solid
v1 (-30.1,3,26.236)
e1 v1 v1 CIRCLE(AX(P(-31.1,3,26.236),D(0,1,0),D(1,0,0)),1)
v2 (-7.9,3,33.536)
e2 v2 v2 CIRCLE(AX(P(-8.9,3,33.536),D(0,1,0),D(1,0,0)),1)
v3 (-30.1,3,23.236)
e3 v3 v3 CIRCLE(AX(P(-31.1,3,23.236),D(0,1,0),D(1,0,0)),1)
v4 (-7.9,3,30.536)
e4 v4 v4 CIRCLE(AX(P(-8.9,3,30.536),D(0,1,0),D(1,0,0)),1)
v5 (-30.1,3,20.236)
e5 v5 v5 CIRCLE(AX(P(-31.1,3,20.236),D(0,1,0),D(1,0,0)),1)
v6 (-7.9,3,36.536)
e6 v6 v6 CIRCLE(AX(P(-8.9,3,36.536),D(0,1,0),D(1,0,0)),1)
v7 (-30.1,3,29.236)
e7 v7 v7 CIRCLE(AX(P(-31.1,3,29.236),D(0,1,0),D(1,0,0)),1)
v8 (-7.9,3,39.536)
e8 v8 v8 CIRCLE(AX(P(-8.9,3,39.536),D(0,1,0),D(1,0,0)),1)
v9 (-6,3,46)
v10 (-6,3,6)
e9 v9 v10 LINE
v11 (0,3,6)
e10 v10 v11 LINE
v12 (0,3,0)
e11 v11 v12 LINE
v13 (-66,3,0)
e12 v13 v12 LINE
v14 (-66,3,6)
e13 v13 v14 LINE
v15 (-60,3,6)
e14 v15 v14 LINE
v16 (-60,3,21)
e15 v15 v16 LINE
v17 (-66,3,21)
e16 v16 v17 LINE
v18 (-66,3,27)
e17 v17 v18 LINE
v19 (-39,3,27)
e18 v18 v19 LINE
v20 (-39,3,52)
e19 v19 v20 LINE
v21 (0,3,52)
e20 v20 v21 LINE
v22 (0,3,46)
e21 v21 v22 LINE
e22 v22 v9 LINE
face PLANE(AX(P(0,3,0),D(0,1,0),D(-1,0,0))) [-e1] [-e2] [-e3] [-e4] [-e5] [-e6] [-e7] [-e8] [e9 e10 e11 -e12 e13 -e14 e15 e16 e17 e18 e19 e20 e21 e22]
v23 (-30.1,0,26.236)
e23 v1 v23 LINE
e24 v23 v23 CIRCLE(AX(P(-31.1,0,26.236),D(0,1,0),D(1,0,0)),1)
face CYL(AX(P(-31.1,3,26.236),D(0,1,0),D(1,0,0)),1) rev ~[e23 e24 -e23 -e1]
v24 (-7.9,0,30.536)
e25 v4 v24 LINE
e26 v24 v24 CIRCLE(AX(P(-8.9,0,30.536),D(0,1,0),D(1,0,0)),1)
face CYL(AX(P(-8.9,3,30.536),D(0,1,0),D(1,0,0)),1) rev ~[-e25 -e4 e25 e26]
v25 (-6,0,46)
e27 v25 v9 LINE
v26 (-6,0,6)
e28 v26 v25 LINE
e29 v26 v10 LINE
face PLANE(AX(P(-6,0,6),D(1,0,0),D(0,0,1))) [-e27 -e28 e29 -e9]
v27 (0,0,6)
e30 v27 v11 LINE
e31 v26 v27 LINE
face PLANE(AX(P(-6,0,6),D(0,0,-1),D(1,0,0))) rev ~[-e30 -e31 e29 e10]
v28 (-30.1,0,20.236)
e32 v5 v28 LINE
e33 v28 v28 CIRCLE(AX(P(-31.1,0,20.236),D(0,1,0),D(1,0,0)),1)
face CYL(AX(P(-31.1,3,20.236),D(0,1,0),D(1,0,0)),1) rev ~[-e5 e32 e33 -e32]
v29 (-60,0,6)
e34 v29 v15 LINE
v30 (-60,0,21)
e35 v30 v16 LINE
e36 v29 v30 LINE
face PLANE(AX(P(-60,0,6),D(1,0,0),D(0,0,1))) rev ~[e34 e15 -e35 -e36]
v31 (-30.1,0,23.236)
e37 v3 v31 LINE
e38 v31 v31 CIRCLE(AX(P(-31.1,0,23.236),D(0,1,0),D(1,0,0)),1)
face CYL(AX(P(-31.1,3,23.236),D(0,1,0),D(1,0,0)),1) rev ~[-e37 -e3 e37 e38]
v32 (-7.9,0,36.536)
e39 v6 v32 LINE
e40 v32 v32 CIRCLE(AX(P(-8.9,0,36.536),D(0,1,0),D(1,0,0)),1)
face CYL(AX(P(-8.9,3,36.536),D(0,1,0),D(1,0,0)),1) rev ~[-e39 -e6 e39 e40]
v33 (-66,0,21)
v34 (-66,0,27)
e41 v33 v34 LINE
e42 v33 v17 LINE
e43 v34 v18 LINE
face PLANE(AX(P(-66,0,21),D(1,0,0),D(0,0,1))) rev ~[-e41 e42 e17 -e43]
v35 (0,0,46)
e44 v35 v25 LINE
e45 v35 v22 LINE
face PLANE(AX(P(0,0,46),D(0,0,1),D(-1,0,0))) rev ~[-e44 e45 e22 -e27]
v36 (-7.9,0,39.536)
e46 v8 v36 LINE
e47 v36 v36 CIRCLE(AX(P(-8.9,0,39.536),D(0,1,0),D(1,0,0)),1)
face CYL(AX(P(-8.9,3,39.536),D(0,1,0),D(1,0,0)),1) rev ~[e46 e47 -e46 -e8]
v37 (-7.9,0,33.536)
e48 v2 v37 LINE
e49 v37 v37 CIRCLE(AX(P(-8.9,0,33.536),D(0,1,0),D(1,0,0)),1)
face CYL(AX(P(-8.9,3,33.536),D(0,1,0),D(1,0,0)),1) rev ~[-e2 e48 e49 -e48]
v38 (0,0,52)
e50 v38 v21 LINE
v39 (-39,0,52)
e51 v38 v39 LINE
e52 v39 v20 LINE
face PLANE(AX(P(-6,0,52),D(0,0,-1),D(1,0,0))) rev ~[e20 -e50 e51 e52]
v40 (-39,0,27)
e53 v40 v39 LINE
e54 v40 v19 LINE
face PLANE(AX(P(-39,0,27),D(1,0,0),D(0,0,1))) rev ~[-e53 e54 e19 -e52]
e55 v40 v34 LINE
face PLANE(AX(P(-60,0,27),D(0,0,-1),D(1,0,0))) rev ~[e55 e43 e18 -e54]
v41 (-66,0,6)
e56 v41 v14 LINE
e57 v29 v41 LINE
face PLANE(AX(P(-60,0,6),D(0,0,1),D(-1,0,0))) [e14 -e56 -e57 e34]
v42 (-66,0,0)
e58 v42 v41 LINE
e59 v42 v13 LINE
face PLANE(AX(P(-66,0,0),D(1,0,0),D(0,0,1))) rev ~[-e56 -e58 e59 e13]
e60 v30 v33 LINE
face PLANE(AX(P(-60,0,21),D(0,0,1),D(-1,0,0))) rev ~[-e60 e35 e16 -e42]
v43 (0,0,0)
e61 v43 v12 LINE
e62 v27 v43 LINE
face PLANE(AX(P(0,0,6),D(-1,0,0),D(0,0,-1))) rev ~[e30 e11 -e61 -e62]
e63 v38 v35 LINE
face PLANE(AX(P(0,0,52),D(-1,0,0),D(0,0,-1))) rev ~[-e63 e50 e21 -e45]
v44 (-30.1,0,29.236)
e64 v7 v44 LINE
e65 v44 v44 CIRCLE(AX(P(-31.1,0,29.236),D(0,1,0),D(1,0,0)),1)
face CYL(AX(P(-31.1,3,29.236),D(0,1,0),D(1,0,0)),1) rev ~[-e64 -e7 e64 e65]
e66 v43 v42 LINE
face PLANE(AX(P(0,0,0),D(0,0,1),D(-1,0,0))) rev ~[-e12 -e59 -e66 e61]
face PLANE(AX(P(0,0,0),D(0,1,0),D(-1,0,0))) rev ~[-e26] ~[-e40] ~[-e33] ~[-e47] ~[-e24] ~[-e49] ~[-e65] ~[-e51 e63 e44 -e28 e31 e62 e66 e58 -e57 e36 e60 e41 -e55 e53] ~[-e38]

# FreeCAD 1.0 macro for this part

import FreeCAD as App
import Part
import Sketcher
from FreeCAD import Vector

doc = App.newDocument("Part")
body = doc.addObject("PartDesign::Body", "Body")

# Sketch on XZ plane
sketch1 = body.newObject("Sketcher::SketchObject", "Sketch")
sketch1.AttachmentSupport = (doc.getObject("XZ_Plane"), [""])
sketch1.MapMode = "FlatFace"
sketch1.addGeometry([
    Part.LineSegment(Vector(0, 6, 0), Vector(0, 0, 0)),  # 0
    Part.LineSegment(Vector(0, 0, 0), Vector(-66, 0, 0)),  # 1
    Part.LineSegment(Vector(-66, 0, 0), Vector(-66, 6, 0)),  # 2
    Part.LineSegment(Vector(-66, 6, 0), Vector(-60, 6, 0)),  # 3
    Part.LineSegment(Vector(-60, 6, 0), Vector(-60, 21, 0)),  # 4
    Part.LineSegment(Vector(-60, 21, 0), Vector(-66, 21, 0)),  # 5
    Part.LineSegment(Vector(-66, 21, 0), Vector(-66, 27, 0)),  # 6
    Part.LineSegment(Vector(-66, 27, 0), Vector(-39, 27, 0)),  # 7
    Part.LineSegment(Vector(-39, 27, 0), Vector(-39, 52, 0)),  # 8
    Part.LineSegment(Vector(-39, 52, 0), Vector(0, 52, 0)),  # 9
    Part.LineSegment(Vector(0, 52, 0), Vector(0, 46, 0)),  # 10
    Part.LineSegment(Vector(0, 46, 0), Vector(-6, 46, 0)),  # 11
    Part.LineSegment(Vector(-6, 46, 0), Vector(-6, 6, 0)),  # 12
    Part.LineSegment(Vector(-6, 6, 0), Vector(0, 6, 0)),  # 13
], False)
sketch1.addConstraint([
    Sketcher.Constraint("Coincident", 0, 2, 1, 1),
    Sketcher.Constraint("Coincident", 1, 2, 2, 1),
    Sketcher.Constraint("Coincident", 2, 2, 3, 1),
    Sketcher.Constraint("Coincident", 3, 2, 4, 1),
    Sketcher.Constraint("Coincident", 4, 2, 5, 1),
    Sketcher.Constraint("Coincident", 5, 2, 6, 1),
    Sketcher.Constraint("Coincident", 6, 2, 7, 1),
    Sketcher.Constraint("Coincident", 7, 2, 8, 1),
    Sketcher.Constraint("Coincident", 8, 2, 9, 1),
    Sketcher.Constraint("Coincident", 9, 2, 10, 1),
    Sketcher.Constraint("Coincident", 10, 2, 11, 1),
    Sketcher.Constraint("Coincident", 11, 2, 12, 1),
    Sketcher.Constraint("Coincident", 12, 2, 13, 1),
    Sketcher.Constraint("Coincident", 13, 2, 0, 1),
    Sketcher.Constraint("Vertical", 0),
    Sketcher.Constraint("Horizontal", 1),
    Sketcher.Constraint("Vertical", 2),
    Sketcher.Constraint("Horizontal", 3),
    Sketcher.Constraint("Vertical", 4),
    Sketcher.Constraint("Horizontal", 5),
    Sketcher.Constraint("Vertical", 6),
    Sketcher.Constraint("Horizontal", 7),
    Sketcher.Constraint("Vertical", 8),
    Sketcher.Constraint("Horizontal", 9),
    Sketcher.Constraint("Vertical", 10),
    Sketcher.Constraint("Horizontal", 11),
    Sketcher.Constraint("Vertical", 12),
    Sketcher.Constraint("Horizontal", 13),
    Sketcher.Constraint("Coincident", 0, 2, -1, 1),
    Sketcher.Constraint("PointOnObject", 9, 2, -2),
    Sketcher.Constraint("Horizontal", 3, 2, 12, 2),
    Sketcher.Constraint("Vertical", 2, 2, 5, 2),
    Sketcher.Constraint("Equal", 5, 11),
    Sketcher.Constraint("Equal", 13, 0),
    Sketcher.Constraint("Equal", 2, 6),
    Sketcher.Constraint("Equal", 6, 10),
    Sketcher.Constraint("DistanceX", 1, 2, 1, 1, 66.0),
    Sketcher.Constraint("DistanceX", 3, 1, 3, 2, 6.0),
    Sketcher.Constraint("DistanceX", 7, 1, 7, 2, 27.0),
    Sketcher.Constraint("DistanceY", 8, 1, 8, 2, 25.0),
    Sketcher.Constraint("DistanceY", -1, 1, 6, 2, 27.0),
])
pad1 = body.newObject("PartDesign::Pad", "Pad")
pad1.Profile = sketch1
pad1.Length = 3
pad1.Reversed = True

# Sketch on XZ plane
sketch2 = body.newObject("Sketcher::SketchObject", "Sketch001")
sketch2.AttachmentSupport = (doc.getObject("XZ_Plane"), [""])
sketch2.MapMode = "FlatFace"
sketch2.AttachmentOffset = App.Placement(Vector(0, 0, -3), App.Rotation())
sketch2.addGeometry([
    Part.Circle(Vector(-8.9, 39.5, 0), Vector(0, 0, 1), 1),  # 0
    Part.Circle(Vector(-31.1, 29.2, 0), Vector(0, 0, 1), 1),  # 1
    Part.Circle(Vector(-8.9, 36.5, 0), Vector(0, 0, 1), 1),  # 2
    Part.Circle(Vector(-8.9, 33.5, 0), Vector(0, 0, 1), 1),  # 3
    Part.Circle(Vector(-8.9, 30.5, 0), Vector(0, 0, 1), 1),  # 4
    Part.Circle(Vector(-31.1, 26.2, 0), Vector(0, 0, 1), 1),  # 5
    Part.Circle(Vector(-31.1, 23.2, 0), Vector(0, 0, 1), 1),  # 6
    Part.Circle(Vector(-31.1, 20.2, 0), Vector(0, 0, 1), 1),  # 7
], False)
sketch2.addConstraint([
    Sketcher.Constraint("Equal", 0, 1),
    Sketcher.Constraint("Equal", 1, 2),
    Sketcher.Constraint("Equal", 2, 3),
    Sketcher.Constraint("Equal", 3, 4),
    Sketcher.Constraint("Equal", 4, 5),
    Sketcher.Constraint("Equal", 5, 6),
    Sketcher.Constraint("Equal", 6, 7),
    Sketcher.Constraint("Vertical", 0, 3, 2, 3),
    Sketcher.Constraint("Vertical", 2, 3, 3, 3),
    Sketcher.Constraint("Vertical", 3, 3, 4, 3),
    Sketcher.Constraint("Vertical", 1, 3, 5, 3),
    Sketcher.Constraint("Vertical", 5, 3, 6, 3),
    Sketcher.Constraint("Vertical", 6, 3, 7, 3),
    Sketcher.Constraint("Diameter", 0, 2.0),
    Sketcher.Constraint("DistanceY", 2, 3, 0, 3, 3.0),
    Sketcher.Constraint("DistanceY", 3, 3, 2, 3, 3.0),
    Sketcher.Constraint("DistanceY", 4, 3, 3, 3, 3.0),
    Sketcher.Constraint("DistanceY", 5, 3, 1, 3, 3.0),
    Sketcher.Constraint("DistanceY", 6, 3, 5, 3, 3.0),
    Sketcher.Constraint("DistanceY", 7, 3, 6, 3, 3.0),
    Sketcher.Constraint("DistanceX", 1, 3, 0, 3, 22.2),
    Sketcher.Constraint("DistanceY", 1, 3, 0, 3, 10.3),
    Sketcher.Constraint("DistanceX", 0, 3, -1, 1, 8.9),
    Sketcher.Constraint("DistanceY", -1, 1, 0, 3, 39.536),
])
pocket1 = body.newObject("PartDesign::Pocket", "Pocket")
pocket1.Profile = sketch2
pocket1.Type = "ThroughAll"
pocket1.Reversed = True

doc.recompute()
